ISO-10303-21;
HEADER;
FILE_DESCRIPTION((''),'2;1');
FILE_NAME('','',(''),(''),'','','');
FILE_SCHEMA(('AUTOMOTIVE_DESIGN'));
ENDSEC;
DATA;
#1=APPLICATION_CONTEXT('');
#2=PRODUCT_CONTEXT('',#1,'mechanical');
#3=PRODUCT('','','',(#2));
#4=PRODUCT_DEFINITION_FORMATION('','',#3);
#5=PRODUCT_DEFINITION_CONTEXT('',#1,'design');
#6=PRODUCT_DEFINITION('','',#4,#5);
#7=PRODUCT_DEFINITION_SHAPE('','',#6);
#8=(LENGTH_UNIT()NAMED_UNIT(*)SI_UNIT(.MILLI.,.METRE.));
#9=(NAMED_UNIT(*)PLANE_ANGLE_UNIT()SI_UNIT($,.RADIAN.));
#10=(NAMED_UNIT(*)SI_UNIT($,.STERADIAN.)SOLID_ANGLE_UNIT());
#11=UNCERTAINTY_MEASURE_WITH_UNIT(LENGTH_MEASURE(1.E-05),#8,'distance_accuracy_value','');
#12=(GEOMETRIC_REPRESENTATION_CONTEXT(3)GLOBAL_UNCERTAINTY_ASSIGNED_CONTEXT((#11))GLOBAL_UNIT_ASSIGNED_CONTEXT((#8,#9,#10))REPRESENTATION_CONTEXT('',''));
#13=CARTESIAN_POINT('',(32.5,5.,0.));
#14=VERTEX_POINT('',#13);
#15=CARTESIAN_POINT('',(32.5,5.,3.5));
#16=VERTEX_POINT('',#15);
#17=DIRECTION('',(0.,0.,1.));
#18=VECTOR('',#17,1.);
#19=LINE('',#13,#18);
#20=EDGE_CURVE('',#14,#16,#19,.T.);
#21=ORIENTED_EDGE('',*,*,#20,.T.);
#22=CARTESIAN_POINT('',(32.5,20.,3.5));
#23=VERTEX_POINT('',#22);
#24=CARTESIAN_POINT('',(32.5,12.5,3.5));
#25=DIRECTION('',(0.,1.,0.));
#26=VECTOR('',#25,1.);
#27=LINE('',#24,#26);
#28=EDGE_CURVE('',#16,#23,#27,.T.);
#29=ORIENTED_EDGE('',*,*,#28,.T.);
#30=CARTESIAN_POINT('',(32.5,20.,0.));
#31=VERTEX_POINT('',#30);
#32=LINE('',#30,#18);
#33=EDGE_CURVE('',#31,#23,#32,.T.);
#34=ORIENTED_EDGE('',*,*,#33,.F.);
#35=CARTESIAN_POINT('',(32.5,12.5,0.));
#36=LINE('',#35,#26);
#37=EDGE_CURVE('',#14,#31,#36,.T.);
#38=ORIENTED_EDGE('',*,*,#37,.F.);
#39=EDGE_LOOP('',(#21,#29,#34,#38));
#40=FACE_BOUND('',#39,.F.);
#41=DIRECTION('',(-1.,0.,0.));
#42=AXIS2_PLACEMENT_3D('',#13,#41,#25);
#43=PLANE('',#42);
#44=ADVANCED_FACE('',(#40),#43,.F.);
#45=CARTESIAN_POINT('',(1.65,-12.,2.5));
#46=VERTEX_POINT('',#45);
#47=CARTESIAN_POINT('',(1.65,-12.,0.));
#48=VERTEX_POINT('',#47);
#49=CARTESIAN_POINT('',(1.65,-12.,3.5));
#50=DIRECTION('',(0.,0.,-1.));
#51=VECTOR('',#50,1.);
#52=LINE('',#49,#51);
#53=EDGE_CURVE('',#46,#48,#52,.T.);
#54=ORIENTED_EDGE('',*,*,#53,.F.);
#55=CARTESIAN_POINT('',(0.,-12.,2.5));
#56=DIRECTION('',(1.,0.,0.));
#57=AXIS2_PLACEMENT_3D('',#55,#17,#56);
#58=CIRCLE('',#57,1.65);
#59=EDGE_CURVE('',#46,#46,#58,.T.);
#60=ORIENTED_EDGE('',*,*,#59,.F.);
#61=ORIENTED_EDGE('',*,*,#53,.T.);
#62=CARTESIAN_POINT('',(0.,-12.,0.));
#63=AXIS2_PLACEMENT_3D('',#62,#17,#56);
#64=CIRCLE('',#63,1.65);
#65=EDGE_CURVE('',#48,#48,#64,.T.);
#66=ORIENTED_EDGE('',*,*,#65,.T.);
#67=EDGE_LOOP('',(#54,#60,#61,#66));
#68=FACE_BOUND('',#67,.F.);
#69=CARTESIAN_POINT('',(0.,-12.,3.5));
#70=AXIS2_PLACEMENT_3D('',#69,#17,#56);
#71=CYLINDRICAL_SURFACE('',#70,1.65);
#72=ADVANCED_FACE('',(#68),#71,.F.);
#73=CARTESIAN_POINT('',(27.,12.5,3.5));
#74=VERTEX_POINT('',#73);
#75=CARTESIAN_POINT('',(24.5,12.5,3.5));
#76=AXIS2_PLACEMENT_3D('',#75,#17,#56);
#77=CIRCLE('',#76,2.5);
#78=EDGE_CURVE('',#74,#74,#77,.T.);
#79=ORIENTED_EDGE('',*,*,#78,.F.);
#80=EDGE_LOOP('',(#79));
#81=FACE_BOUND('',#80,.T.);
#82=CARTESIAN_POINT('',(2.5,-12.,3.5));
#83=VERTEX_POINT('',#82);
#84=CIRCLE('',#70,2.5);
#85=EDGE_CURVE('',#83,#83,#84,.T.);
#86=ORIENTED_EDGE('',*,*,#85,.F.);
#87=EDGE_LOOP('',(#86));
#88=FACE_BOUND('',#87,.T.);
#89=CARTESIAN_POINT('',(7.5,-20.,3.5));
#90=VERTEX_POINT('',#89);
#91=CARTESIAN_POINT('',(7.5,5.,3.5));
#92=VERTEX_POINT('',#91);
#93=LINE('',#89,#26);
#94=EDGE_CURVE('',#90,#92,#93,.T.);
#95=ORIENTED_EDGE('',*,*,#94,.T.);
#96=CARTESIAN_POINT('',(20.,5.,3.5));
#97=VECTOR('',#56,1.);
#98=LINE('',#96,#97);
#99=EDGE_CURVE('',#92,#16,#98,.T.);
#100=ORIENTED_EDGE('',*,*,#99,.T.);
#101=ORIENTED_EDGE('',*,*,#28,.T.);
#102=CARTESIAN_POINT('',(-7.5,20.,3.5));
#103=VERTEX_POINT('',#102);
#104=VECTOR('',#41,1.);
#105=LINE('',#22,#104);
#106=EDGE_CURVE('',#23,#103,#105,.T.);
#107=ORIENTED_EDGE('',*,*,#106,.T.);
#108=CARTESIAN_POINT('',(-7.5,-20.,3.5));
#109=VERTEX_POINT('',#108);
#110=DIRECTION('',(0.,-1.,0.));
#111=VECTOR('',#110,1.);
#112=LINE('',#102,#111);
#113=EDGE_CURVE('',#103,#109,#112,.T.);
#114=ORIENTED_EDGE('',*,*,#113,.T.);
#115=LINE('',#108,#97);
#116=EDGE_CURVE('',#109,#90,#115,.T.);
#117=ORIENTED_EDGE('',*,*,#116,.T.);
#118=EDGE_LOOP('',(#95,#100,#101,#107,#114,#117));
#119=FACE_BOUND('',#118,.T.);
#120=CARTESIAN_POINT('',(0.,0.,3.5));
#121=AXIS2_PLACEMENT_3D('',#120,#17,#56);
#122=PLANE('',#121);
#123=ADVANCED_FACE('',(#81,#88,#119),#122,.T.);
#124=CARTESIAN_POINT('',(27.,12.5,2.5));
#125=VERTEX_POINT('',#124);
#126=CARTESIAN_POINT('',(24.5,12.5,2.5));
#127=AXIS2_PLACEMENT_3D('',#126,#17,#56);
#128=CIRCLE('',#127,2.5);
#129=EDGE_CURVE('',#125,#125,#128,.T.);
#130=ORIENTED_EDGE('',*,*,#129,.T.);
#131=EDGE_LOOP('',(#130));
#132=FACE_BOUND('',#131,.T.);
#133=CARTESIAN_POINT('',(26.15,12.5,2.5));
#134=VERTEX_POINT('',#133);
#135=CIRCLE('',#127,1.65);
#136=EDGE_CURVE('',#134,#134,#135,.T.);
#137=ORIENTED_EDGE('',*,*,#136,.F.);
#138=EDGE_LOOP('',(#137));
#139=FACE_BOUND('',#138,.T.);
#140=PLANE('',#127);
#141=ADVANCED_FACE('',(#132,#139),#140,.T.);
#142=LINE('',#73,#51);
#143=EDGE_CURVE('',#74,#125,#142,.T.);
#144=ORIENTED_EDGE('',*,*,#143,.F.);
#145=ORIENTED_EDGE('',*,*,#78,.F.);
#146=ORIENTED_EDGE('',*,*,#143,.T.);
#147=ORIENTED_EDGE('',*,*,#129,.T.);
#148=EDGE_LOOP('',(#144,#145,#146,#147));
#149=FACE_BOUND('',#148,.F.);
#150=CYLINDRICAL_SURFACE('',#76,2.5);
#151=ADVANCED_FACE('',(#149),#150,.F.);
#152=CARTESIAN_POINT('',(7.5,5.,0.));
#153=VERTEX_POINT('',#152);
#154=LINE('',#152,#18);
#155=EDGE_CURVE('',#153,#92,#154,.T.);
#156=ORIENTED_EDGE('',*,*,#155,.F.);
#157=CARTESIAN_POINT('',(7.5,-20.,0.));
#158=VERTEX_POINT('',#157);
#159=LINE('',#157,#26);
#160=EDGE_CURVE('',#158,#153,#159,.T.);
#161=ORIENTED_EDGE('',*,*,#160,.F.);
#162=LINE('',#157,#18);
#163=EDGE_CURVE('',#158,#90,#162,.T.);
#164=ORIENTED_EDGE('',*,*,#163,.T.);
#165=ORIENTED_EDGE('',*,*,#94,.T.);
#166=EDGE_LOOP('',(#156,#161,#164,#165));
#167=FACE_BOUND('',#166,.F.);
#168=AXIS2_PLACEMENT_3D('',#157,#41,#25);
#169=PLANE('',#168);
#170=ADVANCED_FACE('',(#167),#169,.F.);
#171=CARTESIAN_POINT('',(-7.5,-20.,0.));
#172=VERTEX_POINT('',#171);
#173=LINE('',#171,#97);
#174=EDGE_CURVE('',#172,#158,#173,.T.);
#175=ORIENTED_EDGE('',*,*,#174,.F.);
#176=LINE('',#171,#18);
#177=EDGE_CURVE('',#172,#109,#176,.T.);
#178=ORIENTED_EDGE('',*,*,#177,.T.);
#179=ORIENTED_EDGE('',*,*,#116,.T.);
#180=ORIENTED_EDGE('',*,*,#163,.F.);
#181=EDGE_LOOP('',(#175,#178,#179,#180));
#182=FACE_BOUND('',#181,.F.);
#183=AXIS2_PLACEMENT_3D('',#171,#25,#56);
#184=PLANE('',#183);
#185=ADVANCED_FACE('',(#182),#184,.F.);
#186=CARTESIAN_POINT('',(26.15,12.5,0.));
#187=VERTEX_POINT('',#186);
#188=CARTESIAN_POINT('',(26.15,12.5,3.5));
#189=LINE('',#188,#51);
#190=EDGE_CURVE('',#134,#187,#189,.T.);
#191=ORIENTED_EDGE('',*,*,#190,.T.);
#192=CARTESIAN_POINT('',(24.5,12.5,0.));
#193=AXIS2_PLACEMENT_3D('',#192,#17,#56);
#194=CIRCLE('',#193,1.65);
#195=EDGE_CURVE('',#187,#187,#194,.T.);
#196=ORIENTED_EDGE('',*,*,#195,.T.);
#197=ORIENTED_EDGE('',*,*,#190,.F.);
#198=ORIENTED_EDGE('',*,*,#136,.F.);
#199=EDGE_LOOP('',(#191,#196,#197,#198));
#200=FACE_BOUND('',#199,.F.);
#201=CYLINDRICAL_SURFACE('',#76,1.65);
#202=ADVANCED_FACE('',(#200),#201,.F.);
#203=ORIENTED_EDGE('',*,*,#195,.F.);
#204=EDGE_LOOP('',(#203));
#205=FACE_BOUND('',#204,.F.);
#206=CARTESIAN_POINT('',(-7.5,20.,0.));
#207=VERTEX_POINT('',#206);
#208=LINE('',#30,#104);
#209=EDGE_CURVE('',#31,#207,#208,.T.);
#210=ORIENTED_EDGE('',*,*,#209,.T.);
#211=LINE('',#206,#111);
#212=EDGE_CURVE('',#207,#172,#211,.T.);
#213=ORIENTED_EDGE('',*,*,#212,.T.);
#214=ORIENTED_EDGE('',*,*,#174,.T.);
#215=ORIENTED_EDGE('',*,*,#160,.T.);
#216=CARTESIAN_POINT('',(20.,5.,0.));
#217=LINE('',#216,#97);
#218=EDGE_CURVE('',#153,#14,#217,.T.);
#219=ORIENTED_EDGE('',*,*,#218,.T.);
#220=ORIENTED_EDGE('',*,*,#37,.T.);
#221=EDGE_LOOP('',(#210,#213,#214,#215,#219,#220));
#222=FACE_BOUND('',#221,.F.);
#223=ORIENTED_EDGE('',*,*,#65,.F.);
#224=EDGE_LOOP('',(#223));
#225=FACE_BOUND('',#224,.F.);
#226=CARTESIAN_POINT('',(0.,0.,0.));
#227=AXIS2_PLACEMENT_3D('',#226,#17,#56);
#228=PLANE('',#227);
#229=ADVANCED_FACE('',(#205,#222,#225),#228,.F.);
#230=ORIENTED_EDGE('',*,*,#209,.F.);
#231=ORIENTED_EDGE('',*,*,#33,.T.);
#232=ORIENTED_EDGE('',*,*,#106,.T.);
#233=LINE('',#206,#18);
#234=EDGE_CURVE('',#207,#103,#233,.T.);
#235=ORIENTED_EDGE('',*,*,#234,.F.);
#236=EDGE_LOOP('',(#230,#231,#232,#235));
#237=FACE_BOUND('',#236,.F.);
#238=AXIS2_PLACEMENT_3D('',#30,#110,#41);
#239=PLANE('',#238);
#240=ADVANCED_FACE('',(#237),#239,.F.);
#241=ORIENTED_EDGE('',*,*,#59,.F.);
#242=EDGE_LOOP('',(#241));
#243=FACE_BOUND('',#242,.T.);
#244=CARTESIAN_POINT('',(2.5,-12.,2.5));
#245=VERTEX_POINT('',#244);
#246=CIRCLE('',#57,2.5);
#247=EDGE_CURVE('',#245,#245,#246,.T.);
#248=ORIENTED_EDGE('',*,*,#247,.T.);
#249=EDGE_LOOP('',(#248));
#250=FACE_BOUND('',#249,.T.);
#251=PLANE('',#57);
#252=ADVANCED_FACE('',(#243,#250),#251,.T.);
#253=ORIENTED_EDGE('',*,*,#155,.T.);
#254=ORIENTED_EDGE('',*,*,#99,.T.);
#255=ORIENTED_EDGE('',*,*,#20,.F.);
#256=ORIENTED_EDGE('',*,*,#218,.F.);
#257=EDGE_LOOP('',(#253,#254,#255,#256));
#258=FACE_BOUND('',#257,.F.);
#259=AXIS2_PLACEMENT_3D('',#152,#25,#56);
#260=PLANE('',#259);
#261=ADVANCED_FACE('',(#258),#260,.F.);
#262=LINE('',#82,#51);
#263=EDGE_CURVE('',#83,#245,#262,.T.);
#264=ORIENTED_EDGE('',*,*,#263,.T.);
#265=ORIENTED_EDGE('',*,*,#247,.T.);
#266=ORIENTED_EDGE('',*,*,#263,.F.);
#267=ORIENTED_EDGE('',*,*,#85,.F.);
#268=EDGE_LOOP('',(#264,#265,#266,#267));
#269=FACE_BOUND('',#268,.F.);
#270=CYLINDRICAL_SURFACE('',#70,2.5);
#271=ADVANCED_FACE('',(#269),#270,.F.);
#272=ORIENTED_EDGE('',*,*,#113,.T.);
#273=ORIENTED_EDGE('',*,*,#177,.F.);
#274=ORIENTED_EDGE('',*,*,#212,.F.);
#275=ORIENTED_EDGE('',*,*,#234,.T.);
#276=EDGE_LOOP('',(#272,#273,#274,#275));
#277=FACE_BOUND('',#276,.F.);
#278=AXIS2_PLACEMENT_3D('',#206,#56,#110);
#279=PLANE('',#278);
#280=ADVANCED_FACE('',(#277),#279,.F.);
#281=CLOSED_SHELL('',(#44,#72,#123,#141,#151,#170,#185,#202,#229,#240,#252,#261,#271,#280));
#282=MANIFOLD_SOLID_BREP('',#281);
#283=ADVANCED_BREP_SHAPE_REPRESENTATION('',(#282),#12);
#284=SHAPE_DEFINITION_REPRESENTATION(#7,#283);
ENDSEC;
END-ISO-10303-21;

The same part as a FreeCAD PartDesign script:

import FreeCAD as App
import Part
import Sketcher
from FreeCAD import Vector
Q = App.Units.Quantity

doc = App.newDocument("Part")
params = doc.addObject("Spreadsheet::Sheet", "Params")
for row, (alias, value) in enumerate([
    ("sketch1_width", "15 mm"),
    ("sketch1_width2", "25 mm"),
    ("pad1_length", "3.5 mm"),
    ("sketch2_diameter", "3.3 mm"),
    ("sketch3_diameter", "5 mm"),
    ("sketch3_diameter2", "3.3 mm"),
    ("pocket2_length", "1 mm"),
], start=1):
    params.set(f"A{row}", alias)
    params.set(f"B{row}", "=" + value)
    params.setAlias(f"B{row}", alias)

body = doc.addObject("PartDesign::Body", "Body")

# Sketch on XY plane
sketch1 = body.newObject("Sketcher::SketchObject", "Sketch")
sketch1.AttachmentSupport = (doc.getObject("XY_Plane"), [""])
sketch1.MapMode = "FlatFace"
sketch1.addGeometry(Part.LineSegment(Vector(-7.5, 20, 0), Vector(-7.5, -20, 0)), False)
sketch1.addGeometry(Part.LineSegment(Vector(-7.5, -20, 0), Vector(7.5, -20, 0)), False)
sketch1.addGeometry(Part.LineSegment(Vector(7.5, -20, 0), Vector(7.5, 5, 0)), False)
sketch1.addGeometry(Part.LineSegment(Vector(7.5, 5, 0), Vector(32.5, 5, 0)), False)
sketch1.addGeometry(Part.LineSegment(Vector(32.5, 5, 0), Vector(32.5, 20, 0)), False)
sketch1.addGeometry(Part.LineSegment(Vector(32.5, 20, 0), Vector(-7.5, 20, 0)), False)
sketch1.addConstraint(Sketcher.Constraint("Coincident", 0, 2, 1, 1))
sketch1.addConstraint(Sketcher.Constraint("Coincident", 1, 2, 2, 1))
sketch1.addConstraint(Sketcher.Constraint("Coincident", 2, 2, 3, 1))
sketch1.addConstraint(Sketcher.Constraint("Coincident", 3, 2, 4, 1))
sketch1.addConstraint(Sketcher.Constraint("Coincident", 4, 2, 5, 1))
sketch1.addConstraint(Sketcher.Constraint("Coincident", 5, 2, 0, 1))
sketch1.addConstraint(Sketcher.Constraint("Vertical", 0))
sketch1.addConstraint(Sketcher.Constraint("Horizontal", 1))
sketch1.addConstraint(Sketcher.Constraint("Vertical", 2))
sketch1.addConstraint(Sketcher.Constraint("Horizontal", 3))
sketch1.addConstraint(Sketcher.Constraint("Vertical", 4))
sketch1.addConstraint(Sketcher.Constraint("Horizontal", 5))
sketch1.addConstraint(Sketcher.Constraint("Symmetric", 1, 2, 5, 2, -1, 1))
sketch1.addConstraint(Sketcher.Constraint("Equal", 5, 0))
sketch1.addConstraint(Sketcher.Constraint("Equal", 3, 2))
sketch1.addConstraint(Sketcher.Constraint("DistanceX", 1, 1, 1, 2, Q("15 mm")))
sketch1.addConstraint(Sketcher.Constraint("DistanceX", 3, 1, 3, 2, Q("25 mm")))
sketch1.setExpression("Constraints[15]", "Params.sketch1_width")
sketch1.setExpression("Constraints[16]", "Params.sketch1_width2")
pad1 = body.newObject("PartDesign::Pad", "Pad")
pad1.Profile = sketch1
pad1.setExpression("Length", "Params.pad1_length")

# Sketch on XY plane
sketch2 = body.newObject("Sketcher::SketchObject", "Sketch001")
sketch2.AttachmentSupport = (doc.getObject("XY_Plane"), [""])
sketch2.MapMode = "FlatFace"
sketch2.AttachmentOffset = App.Placement(Vector(0, 0, 3.5), App.Rotation())
sketch2.addGeometry(Part.Circle(Vector(0, -12, 0), Vector(0, 0, 1), 1.65), False)
sketch2.addGeometry(Part.Circle(Vector(24.5, 12.5, 0), Vector(0, 0, 1), 1.65), False)
sketch2.addConstraint(Sketcher.Constraint("Equal", 0, 1))
sketch2.addConstraint(Sketcher.Constraint("PointOnObject", 0, 3, -2))
sketch2.addConstraint(Sketcher.Constraint("Diameter", 0, Q("3.3 mm")))
sketch2.addConstraint(Sketcher.Constraint("DistanceY", 0, 3, -1, 1, Q("12 mm")))
sketch2.addConstraint(Sketcher.Constraint("DistanceX", -1, 1, 1, 3, Q("24.5 mm")))
sketch2.addConstraint(Sketcher.Constraint("DistanceY", -1, 1, 1, 3, Q("12.5 mm")))
sketch2.setExpression("Constraints[2]", "Params.sketch2_diameter")
pocket1 = body.newObject("PartDesign::Pocket", "Pocket")
pocket1.Profile = sketch2
pocket1.Type = "ThroughAll"

# Sketch on XY plane
sketch3 = body.newObject("Sketcher::SketchObject", "Sketch002")
sketch3.AttachmentSupport = (doc.getObject("XY_Plane"), [""])
sketch3.MapMode = "FlatFace"
sketch3.AttachmentOffset = App.Placement(Vector(0, 0, 3.5), App.Rotation())
sketch3.addGeometry(Part.Circle(Vector(0, -12, 0), Vector(0, 0, 1), 2.5), False)
sketch3.addGeometry(Part.Circle(Vector(0, -12, 0), Vector(0, 0, 1), 1.65), False)
sketch3.addGeometry(Part.Circle(Vector(24.5, 12.5, 0), Vector(0, 0, 1), 2.5), False)
sketch3.addGeometry(Part.Circle(Vector(24.5, 12.5, 0), Vector(0, 0, 1), 1.65), False)
sketch3.addConstraint(Sketcher.Constraint("Coincident", 1, 3, 0, 3))
sketch3.addConstraint(Sketcher.Constraint("Coincident", 3, 3, 2, 3))
sketch3.addConstraint(Sketcher.Constraint("Equal", 0, 2))
sketch3.addConstraint(Sketcher.Constraint("Equal", 1, 3))
sketch3.addConstraint(Sketcher.Constraint("PointOnObject", 0, 3, -2))
sketch3.addConstraint(Sketcher.Constraint("Diameter", 0, Q("5 mm")))
sketch3.addConstraint(Sketcher.Constraint("Diameter", 1, Q("3.3 mm")))
sketch3.addConstraint(Sketcher.Constraint("DistanceY", 0, 3, -1, 1, Q("12 mm")))
sketch3.addConstraint(Sketcher.Constraint("DistanceX", -1, 1, 2, 3, Q("24.5 mm")))
sketch3.addConstraint(Sketcher.Constraint("DistanceY", -1, 1, 2, 3, Q("12.5 mm")))
sketch3.setExpression("Constraints[5]", "Params.sketch3_diameter")
sketch3.setExpression("Constraints[6]", "Params.sketch3_diameter2")
pocket2 = body.newObject("PartDesign::Pocket", "Pocket001")
pocket2.Profile = sketch3
pocket2.setExpression("Length", "Params.pocket2_length")

doc.recompute()
